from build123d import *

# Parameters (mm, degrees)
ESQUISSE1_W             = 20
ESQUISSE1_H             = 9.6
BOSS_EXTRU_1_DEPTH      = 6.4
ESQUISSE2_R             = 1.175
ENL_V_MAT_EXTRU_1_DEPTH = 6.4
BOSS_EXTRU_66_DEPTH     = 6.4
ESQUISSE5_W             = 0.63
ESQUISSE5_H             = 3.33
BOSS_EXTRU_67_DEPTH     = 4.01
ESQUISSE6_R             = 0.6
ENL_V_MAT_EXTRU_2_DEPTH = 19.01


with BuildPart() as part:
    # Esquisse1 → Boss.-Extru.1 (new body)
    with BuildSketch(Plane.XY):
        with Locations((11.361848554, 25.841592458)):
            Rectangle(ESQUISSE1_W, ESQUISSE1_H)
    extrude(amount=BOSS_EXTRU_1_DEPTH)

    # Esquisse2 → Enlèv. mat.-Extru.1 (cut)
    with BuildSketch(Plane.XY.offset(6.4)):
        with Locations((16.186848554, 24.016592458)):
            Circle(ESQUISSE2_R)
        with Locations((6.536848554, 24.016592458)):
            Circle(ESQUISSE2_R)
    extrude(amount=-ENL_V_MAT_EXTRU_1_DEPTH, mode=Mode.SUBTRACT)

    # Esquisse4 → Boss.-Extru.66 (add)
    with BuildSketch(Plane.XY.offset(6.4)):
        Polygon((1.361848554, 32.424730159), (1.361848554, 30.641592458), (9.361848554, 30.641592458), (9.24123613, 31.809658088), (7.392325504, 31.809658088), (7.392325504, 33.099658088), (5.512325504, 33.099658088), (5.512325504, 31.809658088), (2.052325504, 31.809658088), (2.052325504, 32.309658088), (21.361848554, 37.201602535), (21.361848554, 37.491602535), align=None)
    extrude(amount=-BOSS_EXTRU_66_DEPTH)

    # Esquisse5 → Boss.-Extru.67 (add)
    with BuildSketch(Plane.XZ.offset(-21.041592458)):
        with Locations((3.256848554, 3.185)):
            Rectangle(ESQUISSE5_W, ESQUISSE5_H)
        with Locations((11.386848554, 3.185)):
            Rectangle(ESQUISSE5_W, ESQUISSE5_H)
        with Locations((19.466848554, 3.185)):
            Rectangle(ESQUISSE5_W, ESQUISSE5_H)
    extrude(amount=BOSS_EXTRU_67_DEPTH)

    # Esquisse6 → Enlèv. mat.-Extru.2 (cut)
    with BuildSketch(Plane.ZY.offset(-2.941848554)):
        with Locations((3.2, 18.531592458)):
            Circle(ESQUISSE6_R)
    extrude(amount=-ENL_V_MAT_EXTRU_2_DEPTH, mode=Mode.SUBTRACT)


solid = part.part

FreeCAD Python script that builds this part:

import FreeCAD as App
import Part
import Sketcher
from FreeCAD import Vector
Q = App.Units.Quantity

doc = App.newDocument("Part")
params = doc.addObject("Spreadsheet::Sheet", "Params")
for row, (alias, value) in enumerate([
    ("sketch1_width", "20 mm"),
    ("sketch1_height", "9.6 mm"),
    ("pad1_length", "6.4 mm"),
    ("sketch2_diameter", "2.35 mm"),
    ("pocket1_length", "6.4 mm"),
    ("sketch3_width", "8 mm"),
    ("sketch3_height", "0.5 mm"),
    ("sketch3_width2", "1.88 mm"),
    ("sketch3_width3", "3.46 mm"),
    ("sketch3_height2", "1.29 mm"),
    ("pad2_length", "6.4 mm"),
    ("sketch4_width", "0.63 mm"),
    ("sketch4_height", "3.33 mm"),
    ("pad3_length", "4.01 mm"),
    ("sketch5_diameter", "1.2 mm"),
    ("pocket2_length", "19.01 mm"),
], start=1):
    params.set(f"A{row}", alias)
    params.set(f"B{row}", "=" + value)
    params.setAlias(f"B{row}", alias)

body = doc.addObject("PartDesign::Body", "Body")

# Sketch on XY plane
sketch1 = body.newObject("Sketcher::SketchObject", "Sketch")
sketch1.AttachmentSupport = (doc.getObject("XY_Plane"), [""])
sketch1.MapMode = "FlatFace"
sketch1.addGeometry([
    Part.LineSegment(Vector(1.361849, 30.641592, 0), Vector(1.361849, 21.041592, 0)),
    Part.LineSegment(Vector(1.361849, 21.041592, 0), Vector(21.361849, 21.041592, 0)),
    Part.LineSegment(Vector(21.361849, 21.041592, 0), Vector(21.361849, 30.641592, 0)),
    Part.LineSegment(Vector(21.361849, 30.641592, 0), Vector(1.361849, 30.641592, 0)),
], False)
sketch1.addConstraint([
    Sketcher.Constraint("Coincident", 0, 2, 1, 1),
    Sketcher.Constraint("Coincident", 1, 2, 2, 1),
    Sketcher.Constraint("Coincident", 2, 2, 3, 1),
    Sketcher.Constraint("Coincident", 3, 2, 0, 1),
    Sketcher.Constraint("Vertical", 0),
    Sketcher.Constraint("Horizontal", 1),
    Sketcher.Constraint("Vertical", 2),
    Sketcher.Constraint("Horizontal", 3),
    Sketcher.Constraint("DistanceX", 1, 1, 1, 2, Q("20 mm")),
    Sketcher.Constraint("DistanceY", 0, 2, 0, 1, Q("9.6 mm")),
    Sketcher.Constraint("DistanceX", -1, 1, 0, 2, Q("1.361849 mm")),
    Sketcher.Constraint("DistanceY", -1, 1, 0, 2, Q("21.041592 mm")),
])
sketch1.setExpression("Constraints[8]", "Params.sketch1_width")
sketch1.setExpression("Constraints[9]", "Params.sketch1_height")
pad1 = body.newObject("PartDesign::Pad", "Pad")
pad1.Profile = sketch1
pad1.setExpression("Length", "Params.pad1_length")

# Sketch on XY plane
sketch2 = body.newObject("Sketcher::SketchObject", "Sketch001")
sketch2.AttachmentSupport = (doc.getObject("XY_Plane"), [""])
sketch2.MapMode = "FlatFace"
sketch2.AttachmentOffset = App.Placement(Vector(0, 0, 6.4), App.Rotation())
sketch2.addGeometry([
    Part.Circle(Vector(16.186849, 24.016592, 0), Vector(0, 0, 1), 1.175),
    Part.Circle(Vector(6.536849, 24.016592, 0), Vector(0, 0, 1), 1.175),
], False)
sketch2.addConstraint([
    Sketcher.Constraint("Equal", 0, 1),
    Sketcher.Constraint("Horizontal", 0, 3, 1, 3),
    Sketcher.Constraint("Diameter", 0, Q("2.35 mm")),
    Sketcher.Constraint("DistanceX", 1, 3, 0, 3, Q("9.65 mm")),
    Sketcher.Constraint("DistanceX", -1, 1, 0, 3, Q("16.186849 mm")),
    Sketcher.Constraint("DistanceY", -1, 1, 0, 3, Q("24.016592 mm")),
])
sketch2.setExpression("Constraints[2]", "Params.sketch2_diameter")
pocket1 = body.newObject("PartDesign::Pocket", "Pocket")
pocket1.Profile = sketch2
pocket1.setExpression("Length", "Params.pocket1_length")

# Sketch on XY plane
sketch3 = body.newObject("Sketcher::SketchObject", "Sketch002")
sketch3.AttachmentSupport = (doc.getObject("XY_Plane"), [""])
sketch3.MapMode = "FlatFace"
sketch3.AttachmentOffset = App.Placement(Vector(0, 0, 6.4), App.Rotation())
sketch3.addGeometry([
    Part.LineSegment(Vector(1.361849, 32.42473, 0), Vector(1.361849, 30.641592, 0)),  # 0
    Part.LineSegment(Vector(1.361849, 30.641592, 0), Vector(9.361849, 30.641592, 0)),  # 1
    Part.LineSegment(Vector(9.361849, 30.641592, 0), Vector(9.241236, 31.809658, 0)),  # 2
    Part.LineSegment(Vector(9.241236, 31.809658, 0), Vector(7.392326, 31.809658, 0)),  # 3
    Part.LineSegment(Vector(7.392326, 31.809658, 0), Vector(7.392326, 33.099658, 0)),  # 4
    Part.LineSegment(Vector(7.392326, 33.099658, 0), Vector(5.512326, 33.099658, 0)),  # 5
    Part.LineSegment(Vector(5.512326, 33.099658, 0), Vector(5.512326, 31.809658, 0)),  # 6
    Part.LineSegment(Vector(5.512326, 31.809658, 0), Vector(2.052326, 31.809658, 0)),  # 7
    Part.LineSegment(Vector(2.052326, 31.809658, 0), Vector(2.052326, 32.309658, 0)),  # 8
    Part.LineSegment(Vector(2.052326, 32.309658, 0), Vector(21.361849, 37.201603, 0)),  # 9
    Part.LineSegment(Vector(21.361849, 37.201603, 0), Vector(21.361849, 37.491603, 0)),  # 10
    Part.LineSegment(Vector(21.361849, 37.491603, 0), Vector(1.361849, 32.42473, 0)),  # 11
], False)
sketch3.addConstraint([
    Sketcher.Constraint("Coincident", 0, 2, 1, 1),
    Sketcher.Constraint("Coincident", 1, 2, 2, 1),
    Sketcher.Constraint("Coincident", 2, 2, 3, 1),
    Sketcher.Constraint("Coincident", 3, 2, 4, 1),
    Sketcher.Constraint("Coincident", 4, 2, 5, 1),
    Sketcher.Constraint("Coincident", 5, 2, 6, 1),
    Sketcher.Constraint("Coincident", 6, 2, 7, 1),
    Sketcher.Constraint("Coincident", 7, 2, 8, 1),
    Sketcher.Constraint("Coincident", 8, 2, 9, 1),
    Sketcher.Constraint("Coincident", 9, 2, 10, 1),
    Sketcher.Constraint("Coincident", 10, 2, 11, 1),
    Sketcher.Constraint("Coincident", 11, 2, 0, 1),
    Sketcher.Constraint("Vertical", 0),
    Sketcher.Constraint("Horizontal", 1),
    Sketcher.Constraint("Horizontal", 3),
    Sketcher.Constraint("Vertical", 4),
    Sketcher.Constraint("Horizontal", 5),
    Sketcher.Constraint("Vertical", 6),
    Sketcher.Constraint("Horizontal", 7),
    Sketcher.Constraint("Vertical", 8),
    Sketcher.Constraint("Vertical", 10),
    Sketcher.Constraint("Parallel", 9, 11),
    Sketcher.Constraint("Horizontal", 3, 2, 6, 2),
    Sketcher.Constraint("DistanceX", 1, 1, 1, 2, Q("8 mm")),
    Sketcher.Constraint("DistanceY", 8, 1, 8, 2, Q("0.5 mm")),
    Sketcher.Constraint("DistanceX", 1, 2, 9, 2, Q("12 mm")),
    Sketcher.Constraint("DistanceX", 5, 2, 5, 1, Q("1.88 mm")),
    Sketcher.Constraint("DistanceX", 7, 2, 7, 1, Q("3.46 mm")),
    Sketcher.Constraint("DistanceY", 4, 1, 4, 2, Q("1.29 mm")),
    Sketcher.Constraint("DistanceY", 10, 1, 10, 2, Q("0.29 mm")),
    Sketcher.Constraint("DistanceX", 3, 2, 3, 1, Q("1.848911 mm")),
    Sketcher.Constraint("Distance", 9, Q("19.919558 mm")),
    Sketcher.Constraint("Distance", 11, Q("20.631849 mm")),
    Sketcher.Constraint("DistanceY", 0, 2, 0, 1, Q("1.783138 mm")),
    Sketcher.Constraint("DistanceX", -1, 1, 0, 2, Q("1.361849 mm")),
    Sketcher.Constraint("DistanceY", -1, 1, 2, 2, Q("31.809658 mm")),
])
sketch3.setExpression("Constraints[23]", "Params.sketch3_width")
sketch3.setExpression("Constraints[24]", "Params.sketch3_height")
sketch3.setExpression("Constraints[26]", "Params.sketch3_width2")
sketch3.setExpression("Constraints[27]", "Params.sketch3_width3")
sketch3.setExpression("Constraints[28]", "Params.sketch3_height2")
pad2 = body.newObject("PartDesign::Pad", "Pad001")
pad2.Profile = sketch3
pad2.setExpression("Length", "Params.pad2_length")
pad2.Reversed = True

# Sketch on XZ plane
sketch4 = body.newObject("Sketcher::SketchObject", "Sketch003")
sketch4.AttachmentSupport = (doc.getObject("XZ_Plane"), [""])
sketch4.MapMode = "FlatFace"
sketch4.AttachmentOffset = App.Placement(Vector(0, 0, -21.041592), App.Rotation())
sketch4.addGeometry([
    Part.LineSegment(Vector(2.941849, 4.85, 0), Vector(2.941849, 1.52, 0)),  # 0
    Part.LineSegment(Vector(2.941849, 1.52, 0), Vector(3.571849, 1.52, 0)),  # 1
    Part.LineSegment(Vector(3.571849, 1.52, 0), Vector(3.571849, 4.85, 0)),  # 2
    Part.LineSegment(Vector(3.571849, 4.85, 0), Vector(2.941849, 4.85, 0)),  # 3
    Part.LineSegment(Vector(11.071849, 4.85, 0), Vector(11.071849, 1.52, 0)),  # 4
    Part.LineSegment(Vector(11.071849, 1.52, 0), Vector(11.701849, 1.52, 0)),  # 5
    Part.LineSegment(Vector(11.701849, 1.52, 0), Vector(11.701849, 4.85, 0)),  # 6
    Part.LineSegment(Vector(11.701849, 4.85, 0), Vector(11.071849, 4.85, 0)),  # 7
    Part.LineSegment(Vector(19.151849, 4.85, 0), Vector(19.151849, 1.52, 0)),  # 8
    Part.LineSegment(Vector(19.151849, 1.52, 0), Vector(19.781849, 1.52, 0)),  # 9
    Part.LineSegment(Vector(19.781849, 1.52, 0), Vector(19.781849, 4.85, 0)),  # 10
    Part.LineSegment(Vector(19.781849, 4.85, 0), Vector(19.151849, 4.85, 0)),  # 11
], False)
sketch4.addConstraint([
    Sketcher.Constraint("Coincident", 0, 2, 1, 1),
    Sketcher.Constraint("Coincident", 1, 2, 2, 1),
    Sketcher.Constraint("Coincident", 2, 2, 3, 1),
    Sketcher.Constraint("Coincident", 3, 2, 0, 1),
    Sketcher.Constraint("Coincident", 4, 2, 5, 1),
    Sketcher.Constraint("Coincident", 5, 2, 6, 1),
    Sketcher.Constraint("Coincident", 6, 2, 7, 1),
    Sketcher.Constraint("Coincident", 7, 2, 4, 1),
    Sketcher.Constraint("Coincident", 8, 2, 9, 1),
    Sketcher.Constraint("Coincident", 9, 2, 10, 1),
    Sketcher.Constraint("Coincident", 10, 2, 11, 1),
    Sketcher.Constraint("Coincident", 11, 2, 8, 1),
    Sketcher.Constraint("Vertical", 0),
    Sketcher.Constraint("Horizontal", 1),
    Sketcher.Constraint("Vertical", 2),
    Sketcher.Constraint("Horizontal", 3),
    Sketcher.Constraint("Vertical", 4),
    Sketcher.Constraint("Horizontal", 5),
    Sketcher.Constraint("Vertical", 6),
    Sketcher.Constraint("Horizontal", 7),
    Sketcher.Constraint("Vertical", 8),
    Sketcher.Constraint("Horizontal", 9),
    Sketcher.Constraint("Vertical", 10),
    Sketcher.Constraint("Horizontal", 11),
    Sketcher.Constraint("Horizontal", 1, 2, 4, 2),
    Sketcher.Constraint("Horizontal", 3, 2, 6, 2),
    Sketcher.Constraint("Horizontal", 5, 2, 8, 2),
    Sketcher.Constraint("Horizontal", 7, 2, 10, 2),
    Sketcher.Constraint("Equal", 3, 5),
    Sketcher.Constraint("Equal", 7, 9),
    Sketcher.Constraint("DistanceX", 1, 1, 1, 2, Q("0.63 mm")),
    Sketcher.Constraint("DistanceY", 0, 2, 0, 1, Q("3.33 mm")),
    Sketcher.Constraint("DistanceX", 1, 2, 4, 2, Q("7.5 mm")),
    Sketcher.Constraint("DistanceY", -1, 1, 0, 2, Q("1.52 mm")),
    Sketcher.Constraint("DistanceX", 5, 2, 8, 2, Q("7.45 mm")),
    Sketcher.Constraint("DistanceX", -1, 1, 0, 2, Q("2.941849 mm")),
])
sketch4.setExpression("Constraints[30]", "Params.sketch4_width")
sketch4.setExpression("Constraints[31]", "Params.sketch4_height")
pad3 = body.newObject("PartDesign::Pad", "Pad002")
pad3.Profile = sketch4
pad3.setExpression("Length", "Params.pad3_length")

# Sketch on YZ plane
sketch5 = body.newObject("Sketcher::SketchObject", "Sketch004")
sketch5.AttachmentSupport = (doc.getObject("YZ_Plane"), [""])
sketch5.MapMode = "FlatFace"
sketch5.AttachmentOffset = App.Placement(Vector(0, 0, 2.941849), App.Rotation())
sketch5.addGeometry(Part.Circle(Vector(18.531592, 3.2, 0), Vector(0, 0, 1), 0.6), False)
sketch5.addConstraint([
    Sketcher.Constraint("Diameter", 0, Q("1.2 mm")),
    Sketcher.Constraint("DistanceY", -1, 1, 0, 3, Q("3.2 mm")),
    Sketcher.Constraint("DistanceX", -1, 1, 0, 3, Q("18.531592 mm")),
])
sketch5.setExpression("Constraints[0]", "Params.sketch5_diameter")
pocket2 = body.newObject("PartDesign::Pocket", "Pocket001")
pocket2.Profile = sketch5
pocket2.setExpression("Length", "Params.pocket2_length")
pocket2.Reversed = True

doc.recompute()
